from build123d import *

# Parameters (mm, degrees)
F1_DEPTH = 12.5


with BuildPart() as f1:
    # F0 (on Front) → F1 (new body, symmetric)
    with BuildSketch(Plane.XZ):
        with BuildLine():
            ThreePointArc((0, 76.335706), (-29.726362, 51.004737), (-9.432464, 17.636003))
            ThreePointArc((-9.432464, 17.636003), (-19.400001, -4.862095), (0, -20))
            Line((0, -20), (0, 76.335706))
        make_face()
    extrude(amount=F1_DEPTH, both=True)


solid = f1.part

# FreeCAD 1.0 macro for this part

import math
import FreeCAD as App
import Part
import Sketcher

V = App.Vector

doc = App.newDocument("Part")
body = doc.addObject("PartDesign::Body", "Body")

# Sketch on XZ plane
sketch1 = body.newObject("Sketcher::SketchObject", "Sketch")
sketch1.AttachmentSupport = (doc.getObject("XZ_Plane"), [""])
sketch1.MapMode = "FlatFace"
sketch1.addGeometry(Part.ArcOfCircle(Part.Circle(V(0, 46, 0), V(0, 0, 1), 30), math.radians(90), math.radians(252)), False)
sketch1.addGeometry(Part.ArcOfCircle(Part.Circle(V(0, 0, 0), V(0, 0, 1), 20), math.radians(118), math.radians(270)), False)
sketch1.addGeometry(Part.LineSegment(V(0, -20, 0), V(0, 76, 0)), False)
sketch1.addConstraint(Sketcher.Constraint("Coincident", 0, 2, 1, 1))
sketch1.addConstraint(Sketcher.Constraint("Coincident", 1, 2, 2, 1))
sketch1.addConstraint(Sketcher.Constraint("Coincident", 2, 2, 0, 1))
sketch1.addConstraint(Sketcher.Constraint("Vertical", 2))
sketch1.addConstraint(Sketcher.Constraint("Coincident", 1, 3, -1, 1))
sketch1.addConstraint(Sketcher.Constraint("PointOnObject", 0, 3, -2))
sketch1.addConstraint(Sketcher.Constraint("PointOnObject", 1, 2, -2))
sketch1.addConstraint(Sketcher.Constraint("Radius", 1, 20.0))
sketch1.addConstraint(Sketcher.Constraint("Radius", 0, 30.107704))
sketch1.addConstraint(Sketcher.Constraint("DistanceY", 0, 2, 0, 3, 28.591999))
pad1 = body.newObject("PartDesign::Pad", "Pad")
pad1.Profile = sketch1
pad1.Length = 25
pad1.Midplane = True

doc.recompute()
